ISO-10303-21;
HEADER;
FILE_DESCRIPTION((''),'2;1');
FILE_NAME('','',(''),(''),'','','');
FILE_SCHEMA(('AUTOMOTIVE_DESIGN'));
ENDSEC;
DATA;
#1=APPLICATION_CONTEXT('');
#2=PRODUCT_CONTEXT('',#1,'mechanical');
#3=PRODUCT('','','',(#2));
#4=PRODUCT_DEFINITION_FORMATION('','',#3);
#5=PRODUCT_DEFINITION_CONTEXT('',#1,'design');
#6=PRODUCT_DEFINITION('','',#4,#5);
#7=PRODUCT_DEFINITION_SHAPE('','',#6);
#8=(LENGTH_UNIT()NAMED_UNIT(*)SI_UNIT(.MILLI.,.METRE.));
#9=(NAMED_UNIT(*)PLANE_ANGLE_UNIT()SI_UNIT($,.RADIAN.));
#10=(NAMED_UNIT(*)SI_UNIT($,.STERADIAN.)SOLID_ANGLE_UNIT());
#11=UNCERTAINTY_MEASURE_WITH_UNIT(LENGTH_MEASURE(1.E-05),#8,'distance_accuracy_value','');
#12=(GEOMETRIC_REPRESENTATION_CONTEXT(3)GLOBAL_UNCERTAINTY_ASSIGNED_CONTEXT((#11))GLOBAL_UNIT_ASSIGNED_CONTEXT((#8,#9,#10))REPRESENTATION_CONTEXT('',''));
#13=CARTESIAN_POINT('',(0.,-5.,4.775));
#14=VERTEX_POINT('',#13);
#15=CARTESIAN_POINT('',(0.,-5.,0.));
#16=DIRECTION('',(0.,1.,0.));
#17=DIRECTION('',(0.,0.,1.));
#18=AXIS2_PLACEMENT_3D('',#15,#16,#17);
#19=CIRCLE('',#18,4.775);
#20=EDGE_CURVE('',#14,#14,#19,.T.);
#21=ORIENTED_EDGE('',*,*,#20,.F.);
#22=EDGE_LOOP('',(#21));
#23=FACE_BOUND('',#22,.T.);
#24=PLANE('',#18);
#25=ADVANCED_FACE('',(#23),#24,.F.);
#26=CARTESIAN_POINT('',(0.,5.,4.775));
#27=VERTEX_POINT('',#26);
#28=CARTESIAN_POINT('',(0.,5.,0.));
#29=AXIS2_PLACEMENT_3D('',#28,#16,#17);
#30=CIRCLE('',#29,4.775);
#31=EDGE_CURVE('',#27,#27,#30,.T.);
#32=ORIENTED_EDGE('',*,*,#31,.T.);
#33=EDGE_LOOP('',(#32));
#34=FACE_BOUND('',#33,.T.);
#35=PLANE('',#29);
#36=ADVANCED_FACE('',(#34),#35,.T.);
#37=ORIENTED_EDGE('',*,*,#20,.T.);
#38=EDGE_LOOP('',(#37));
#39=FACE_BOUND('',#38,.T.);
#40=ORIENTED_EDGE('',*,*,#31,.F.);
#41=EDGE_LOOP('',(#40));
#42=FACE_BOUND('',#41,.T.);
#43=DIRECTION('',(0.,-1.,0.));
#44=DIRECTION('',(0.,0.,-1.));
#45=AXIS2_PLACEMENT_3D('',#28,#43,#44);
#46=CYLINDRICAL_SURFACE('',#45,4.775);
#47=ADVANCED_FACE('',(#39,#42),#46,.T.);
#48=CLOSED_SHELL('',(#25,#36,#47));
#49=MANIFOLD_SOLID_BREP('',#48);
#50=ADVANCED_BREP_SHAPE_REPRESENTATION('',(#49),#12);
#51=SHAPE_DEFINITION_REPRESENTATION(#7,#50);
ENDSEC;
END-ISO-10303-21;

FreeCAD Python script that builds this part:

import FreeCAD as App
import Part
import Sketcher
from FreeCAD import Vector
Q = App.Units.Quantity

doc = App.newDocument("Part")
body = doc.addObject("PartDesign::Body", "Body")

sketch1 = body.newObject("Sketcher::SketchObject", "Sketch")
sketch1.AttachmentSupport = (doc.getObject("XZ_Plane"), [""])
sketch1.MapMode = "FlatFace"
sketch1.addGeometry(Part.Circle(Vector(0, 0, 0), Vector(0, 0, 1), 4.775), False)
sketch1.addConstraint(Sketcher.Constraint("Coincident", 0, 3, -1, 1))
sketch1.addConstraint(Sketcher.Constraint("Diameter", 0, Q("9.55 mm")))
pad1 = body.newObject("PartDesign::Pad", "Pad")
pad1.Profile = sketch1
pad1.Length = 10
pad1.Midplane = True

doc.recompute()
